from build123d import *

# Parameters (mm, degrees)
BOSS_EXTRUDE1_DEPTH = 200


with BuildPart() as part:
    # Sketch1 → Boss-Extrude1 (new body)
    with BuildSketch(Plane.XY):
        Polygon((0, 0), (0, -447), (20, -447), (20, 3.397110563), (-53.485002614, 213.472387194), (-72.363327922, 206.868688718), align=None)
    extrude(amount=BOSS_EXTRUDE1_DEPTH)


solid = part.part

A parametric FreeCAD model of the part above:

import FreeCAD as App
import Part
import Sketcher
from FreeCAD import Vector
Q = App.Units.Quantity


def add_polygon(sketch, points):
    """Adds a closed chain of lines whose ends are joined by coincident constraints."""
    first, n = sketch.GeometryCount, len(points)
    for a, b in zip(points, points[1:] + points[:1]):
        sketch.addGeometry(Part.LineSegment(App.Vector(*a, 0), App.Vector(*b, 0)), False)
    for i in range(n):
        sketch.addConstraint(Sketcher.Constraint("Coincident", first + i, 2, first + (i + 1) % n, 1))

doc = App.newDocument("Part")
body = doc.addObject("PartDesign::Body", "Body")

# Sketch on XY plane
sketch1 = body.newObject("Sketcher::SketchObject", "Sketch")
sketch1.AttachmentSupport = (doc.getObject("XY_Plane"), [""])
sketch1.MapMode = "FlatFace"
add_polygon(sketch1, [(0, 0), (0, -447), (20, -447), (20, 3), (-53, 213), (-72, 207)])  # lines 0-5
sketch1.addConstraint(Sketcher.Constraint("Vertical", 0))
sketch1.addConstraint(Sketcher.Constraint("Horizontal", 1))
sketch1.addConstraint(Sketcher.Constraint("Vertical", 2))
sketch1.addConstraint(Sketcher.Constraint("Coincident", 5, 2, -1, 1))
sketch1.addConstraint(Sketcher.Constraint("Perpendicular", 3, 4))
sketch1.addConstraint(Sketcher.Constraint("Perpendicular", 4, 5))
sketch1.addConstraint(Sketcher.Constraint("DistanceX", 1, 1, 1, 2, 20.0))
sketch1.addConstraint(Sketcher.Constraint("DistanceY", 0, 2, 0, 1, 447.0))
sketch1.addConstraint(Sketcher.Constraint("Distance", 4, 20.0))
sketch1.addConstraint(Sketcher.Constraint("Angle", 3, Q("109.28 deg")))
sketch1.addConstraint(Sketcher.Constraint("Distance", 5, 219.16))
pad1 = body.newObject("PartDesign::Pad", "Pad")
pad1.Profile = sketch1
pad1.Length = 200

doc.recompute()
